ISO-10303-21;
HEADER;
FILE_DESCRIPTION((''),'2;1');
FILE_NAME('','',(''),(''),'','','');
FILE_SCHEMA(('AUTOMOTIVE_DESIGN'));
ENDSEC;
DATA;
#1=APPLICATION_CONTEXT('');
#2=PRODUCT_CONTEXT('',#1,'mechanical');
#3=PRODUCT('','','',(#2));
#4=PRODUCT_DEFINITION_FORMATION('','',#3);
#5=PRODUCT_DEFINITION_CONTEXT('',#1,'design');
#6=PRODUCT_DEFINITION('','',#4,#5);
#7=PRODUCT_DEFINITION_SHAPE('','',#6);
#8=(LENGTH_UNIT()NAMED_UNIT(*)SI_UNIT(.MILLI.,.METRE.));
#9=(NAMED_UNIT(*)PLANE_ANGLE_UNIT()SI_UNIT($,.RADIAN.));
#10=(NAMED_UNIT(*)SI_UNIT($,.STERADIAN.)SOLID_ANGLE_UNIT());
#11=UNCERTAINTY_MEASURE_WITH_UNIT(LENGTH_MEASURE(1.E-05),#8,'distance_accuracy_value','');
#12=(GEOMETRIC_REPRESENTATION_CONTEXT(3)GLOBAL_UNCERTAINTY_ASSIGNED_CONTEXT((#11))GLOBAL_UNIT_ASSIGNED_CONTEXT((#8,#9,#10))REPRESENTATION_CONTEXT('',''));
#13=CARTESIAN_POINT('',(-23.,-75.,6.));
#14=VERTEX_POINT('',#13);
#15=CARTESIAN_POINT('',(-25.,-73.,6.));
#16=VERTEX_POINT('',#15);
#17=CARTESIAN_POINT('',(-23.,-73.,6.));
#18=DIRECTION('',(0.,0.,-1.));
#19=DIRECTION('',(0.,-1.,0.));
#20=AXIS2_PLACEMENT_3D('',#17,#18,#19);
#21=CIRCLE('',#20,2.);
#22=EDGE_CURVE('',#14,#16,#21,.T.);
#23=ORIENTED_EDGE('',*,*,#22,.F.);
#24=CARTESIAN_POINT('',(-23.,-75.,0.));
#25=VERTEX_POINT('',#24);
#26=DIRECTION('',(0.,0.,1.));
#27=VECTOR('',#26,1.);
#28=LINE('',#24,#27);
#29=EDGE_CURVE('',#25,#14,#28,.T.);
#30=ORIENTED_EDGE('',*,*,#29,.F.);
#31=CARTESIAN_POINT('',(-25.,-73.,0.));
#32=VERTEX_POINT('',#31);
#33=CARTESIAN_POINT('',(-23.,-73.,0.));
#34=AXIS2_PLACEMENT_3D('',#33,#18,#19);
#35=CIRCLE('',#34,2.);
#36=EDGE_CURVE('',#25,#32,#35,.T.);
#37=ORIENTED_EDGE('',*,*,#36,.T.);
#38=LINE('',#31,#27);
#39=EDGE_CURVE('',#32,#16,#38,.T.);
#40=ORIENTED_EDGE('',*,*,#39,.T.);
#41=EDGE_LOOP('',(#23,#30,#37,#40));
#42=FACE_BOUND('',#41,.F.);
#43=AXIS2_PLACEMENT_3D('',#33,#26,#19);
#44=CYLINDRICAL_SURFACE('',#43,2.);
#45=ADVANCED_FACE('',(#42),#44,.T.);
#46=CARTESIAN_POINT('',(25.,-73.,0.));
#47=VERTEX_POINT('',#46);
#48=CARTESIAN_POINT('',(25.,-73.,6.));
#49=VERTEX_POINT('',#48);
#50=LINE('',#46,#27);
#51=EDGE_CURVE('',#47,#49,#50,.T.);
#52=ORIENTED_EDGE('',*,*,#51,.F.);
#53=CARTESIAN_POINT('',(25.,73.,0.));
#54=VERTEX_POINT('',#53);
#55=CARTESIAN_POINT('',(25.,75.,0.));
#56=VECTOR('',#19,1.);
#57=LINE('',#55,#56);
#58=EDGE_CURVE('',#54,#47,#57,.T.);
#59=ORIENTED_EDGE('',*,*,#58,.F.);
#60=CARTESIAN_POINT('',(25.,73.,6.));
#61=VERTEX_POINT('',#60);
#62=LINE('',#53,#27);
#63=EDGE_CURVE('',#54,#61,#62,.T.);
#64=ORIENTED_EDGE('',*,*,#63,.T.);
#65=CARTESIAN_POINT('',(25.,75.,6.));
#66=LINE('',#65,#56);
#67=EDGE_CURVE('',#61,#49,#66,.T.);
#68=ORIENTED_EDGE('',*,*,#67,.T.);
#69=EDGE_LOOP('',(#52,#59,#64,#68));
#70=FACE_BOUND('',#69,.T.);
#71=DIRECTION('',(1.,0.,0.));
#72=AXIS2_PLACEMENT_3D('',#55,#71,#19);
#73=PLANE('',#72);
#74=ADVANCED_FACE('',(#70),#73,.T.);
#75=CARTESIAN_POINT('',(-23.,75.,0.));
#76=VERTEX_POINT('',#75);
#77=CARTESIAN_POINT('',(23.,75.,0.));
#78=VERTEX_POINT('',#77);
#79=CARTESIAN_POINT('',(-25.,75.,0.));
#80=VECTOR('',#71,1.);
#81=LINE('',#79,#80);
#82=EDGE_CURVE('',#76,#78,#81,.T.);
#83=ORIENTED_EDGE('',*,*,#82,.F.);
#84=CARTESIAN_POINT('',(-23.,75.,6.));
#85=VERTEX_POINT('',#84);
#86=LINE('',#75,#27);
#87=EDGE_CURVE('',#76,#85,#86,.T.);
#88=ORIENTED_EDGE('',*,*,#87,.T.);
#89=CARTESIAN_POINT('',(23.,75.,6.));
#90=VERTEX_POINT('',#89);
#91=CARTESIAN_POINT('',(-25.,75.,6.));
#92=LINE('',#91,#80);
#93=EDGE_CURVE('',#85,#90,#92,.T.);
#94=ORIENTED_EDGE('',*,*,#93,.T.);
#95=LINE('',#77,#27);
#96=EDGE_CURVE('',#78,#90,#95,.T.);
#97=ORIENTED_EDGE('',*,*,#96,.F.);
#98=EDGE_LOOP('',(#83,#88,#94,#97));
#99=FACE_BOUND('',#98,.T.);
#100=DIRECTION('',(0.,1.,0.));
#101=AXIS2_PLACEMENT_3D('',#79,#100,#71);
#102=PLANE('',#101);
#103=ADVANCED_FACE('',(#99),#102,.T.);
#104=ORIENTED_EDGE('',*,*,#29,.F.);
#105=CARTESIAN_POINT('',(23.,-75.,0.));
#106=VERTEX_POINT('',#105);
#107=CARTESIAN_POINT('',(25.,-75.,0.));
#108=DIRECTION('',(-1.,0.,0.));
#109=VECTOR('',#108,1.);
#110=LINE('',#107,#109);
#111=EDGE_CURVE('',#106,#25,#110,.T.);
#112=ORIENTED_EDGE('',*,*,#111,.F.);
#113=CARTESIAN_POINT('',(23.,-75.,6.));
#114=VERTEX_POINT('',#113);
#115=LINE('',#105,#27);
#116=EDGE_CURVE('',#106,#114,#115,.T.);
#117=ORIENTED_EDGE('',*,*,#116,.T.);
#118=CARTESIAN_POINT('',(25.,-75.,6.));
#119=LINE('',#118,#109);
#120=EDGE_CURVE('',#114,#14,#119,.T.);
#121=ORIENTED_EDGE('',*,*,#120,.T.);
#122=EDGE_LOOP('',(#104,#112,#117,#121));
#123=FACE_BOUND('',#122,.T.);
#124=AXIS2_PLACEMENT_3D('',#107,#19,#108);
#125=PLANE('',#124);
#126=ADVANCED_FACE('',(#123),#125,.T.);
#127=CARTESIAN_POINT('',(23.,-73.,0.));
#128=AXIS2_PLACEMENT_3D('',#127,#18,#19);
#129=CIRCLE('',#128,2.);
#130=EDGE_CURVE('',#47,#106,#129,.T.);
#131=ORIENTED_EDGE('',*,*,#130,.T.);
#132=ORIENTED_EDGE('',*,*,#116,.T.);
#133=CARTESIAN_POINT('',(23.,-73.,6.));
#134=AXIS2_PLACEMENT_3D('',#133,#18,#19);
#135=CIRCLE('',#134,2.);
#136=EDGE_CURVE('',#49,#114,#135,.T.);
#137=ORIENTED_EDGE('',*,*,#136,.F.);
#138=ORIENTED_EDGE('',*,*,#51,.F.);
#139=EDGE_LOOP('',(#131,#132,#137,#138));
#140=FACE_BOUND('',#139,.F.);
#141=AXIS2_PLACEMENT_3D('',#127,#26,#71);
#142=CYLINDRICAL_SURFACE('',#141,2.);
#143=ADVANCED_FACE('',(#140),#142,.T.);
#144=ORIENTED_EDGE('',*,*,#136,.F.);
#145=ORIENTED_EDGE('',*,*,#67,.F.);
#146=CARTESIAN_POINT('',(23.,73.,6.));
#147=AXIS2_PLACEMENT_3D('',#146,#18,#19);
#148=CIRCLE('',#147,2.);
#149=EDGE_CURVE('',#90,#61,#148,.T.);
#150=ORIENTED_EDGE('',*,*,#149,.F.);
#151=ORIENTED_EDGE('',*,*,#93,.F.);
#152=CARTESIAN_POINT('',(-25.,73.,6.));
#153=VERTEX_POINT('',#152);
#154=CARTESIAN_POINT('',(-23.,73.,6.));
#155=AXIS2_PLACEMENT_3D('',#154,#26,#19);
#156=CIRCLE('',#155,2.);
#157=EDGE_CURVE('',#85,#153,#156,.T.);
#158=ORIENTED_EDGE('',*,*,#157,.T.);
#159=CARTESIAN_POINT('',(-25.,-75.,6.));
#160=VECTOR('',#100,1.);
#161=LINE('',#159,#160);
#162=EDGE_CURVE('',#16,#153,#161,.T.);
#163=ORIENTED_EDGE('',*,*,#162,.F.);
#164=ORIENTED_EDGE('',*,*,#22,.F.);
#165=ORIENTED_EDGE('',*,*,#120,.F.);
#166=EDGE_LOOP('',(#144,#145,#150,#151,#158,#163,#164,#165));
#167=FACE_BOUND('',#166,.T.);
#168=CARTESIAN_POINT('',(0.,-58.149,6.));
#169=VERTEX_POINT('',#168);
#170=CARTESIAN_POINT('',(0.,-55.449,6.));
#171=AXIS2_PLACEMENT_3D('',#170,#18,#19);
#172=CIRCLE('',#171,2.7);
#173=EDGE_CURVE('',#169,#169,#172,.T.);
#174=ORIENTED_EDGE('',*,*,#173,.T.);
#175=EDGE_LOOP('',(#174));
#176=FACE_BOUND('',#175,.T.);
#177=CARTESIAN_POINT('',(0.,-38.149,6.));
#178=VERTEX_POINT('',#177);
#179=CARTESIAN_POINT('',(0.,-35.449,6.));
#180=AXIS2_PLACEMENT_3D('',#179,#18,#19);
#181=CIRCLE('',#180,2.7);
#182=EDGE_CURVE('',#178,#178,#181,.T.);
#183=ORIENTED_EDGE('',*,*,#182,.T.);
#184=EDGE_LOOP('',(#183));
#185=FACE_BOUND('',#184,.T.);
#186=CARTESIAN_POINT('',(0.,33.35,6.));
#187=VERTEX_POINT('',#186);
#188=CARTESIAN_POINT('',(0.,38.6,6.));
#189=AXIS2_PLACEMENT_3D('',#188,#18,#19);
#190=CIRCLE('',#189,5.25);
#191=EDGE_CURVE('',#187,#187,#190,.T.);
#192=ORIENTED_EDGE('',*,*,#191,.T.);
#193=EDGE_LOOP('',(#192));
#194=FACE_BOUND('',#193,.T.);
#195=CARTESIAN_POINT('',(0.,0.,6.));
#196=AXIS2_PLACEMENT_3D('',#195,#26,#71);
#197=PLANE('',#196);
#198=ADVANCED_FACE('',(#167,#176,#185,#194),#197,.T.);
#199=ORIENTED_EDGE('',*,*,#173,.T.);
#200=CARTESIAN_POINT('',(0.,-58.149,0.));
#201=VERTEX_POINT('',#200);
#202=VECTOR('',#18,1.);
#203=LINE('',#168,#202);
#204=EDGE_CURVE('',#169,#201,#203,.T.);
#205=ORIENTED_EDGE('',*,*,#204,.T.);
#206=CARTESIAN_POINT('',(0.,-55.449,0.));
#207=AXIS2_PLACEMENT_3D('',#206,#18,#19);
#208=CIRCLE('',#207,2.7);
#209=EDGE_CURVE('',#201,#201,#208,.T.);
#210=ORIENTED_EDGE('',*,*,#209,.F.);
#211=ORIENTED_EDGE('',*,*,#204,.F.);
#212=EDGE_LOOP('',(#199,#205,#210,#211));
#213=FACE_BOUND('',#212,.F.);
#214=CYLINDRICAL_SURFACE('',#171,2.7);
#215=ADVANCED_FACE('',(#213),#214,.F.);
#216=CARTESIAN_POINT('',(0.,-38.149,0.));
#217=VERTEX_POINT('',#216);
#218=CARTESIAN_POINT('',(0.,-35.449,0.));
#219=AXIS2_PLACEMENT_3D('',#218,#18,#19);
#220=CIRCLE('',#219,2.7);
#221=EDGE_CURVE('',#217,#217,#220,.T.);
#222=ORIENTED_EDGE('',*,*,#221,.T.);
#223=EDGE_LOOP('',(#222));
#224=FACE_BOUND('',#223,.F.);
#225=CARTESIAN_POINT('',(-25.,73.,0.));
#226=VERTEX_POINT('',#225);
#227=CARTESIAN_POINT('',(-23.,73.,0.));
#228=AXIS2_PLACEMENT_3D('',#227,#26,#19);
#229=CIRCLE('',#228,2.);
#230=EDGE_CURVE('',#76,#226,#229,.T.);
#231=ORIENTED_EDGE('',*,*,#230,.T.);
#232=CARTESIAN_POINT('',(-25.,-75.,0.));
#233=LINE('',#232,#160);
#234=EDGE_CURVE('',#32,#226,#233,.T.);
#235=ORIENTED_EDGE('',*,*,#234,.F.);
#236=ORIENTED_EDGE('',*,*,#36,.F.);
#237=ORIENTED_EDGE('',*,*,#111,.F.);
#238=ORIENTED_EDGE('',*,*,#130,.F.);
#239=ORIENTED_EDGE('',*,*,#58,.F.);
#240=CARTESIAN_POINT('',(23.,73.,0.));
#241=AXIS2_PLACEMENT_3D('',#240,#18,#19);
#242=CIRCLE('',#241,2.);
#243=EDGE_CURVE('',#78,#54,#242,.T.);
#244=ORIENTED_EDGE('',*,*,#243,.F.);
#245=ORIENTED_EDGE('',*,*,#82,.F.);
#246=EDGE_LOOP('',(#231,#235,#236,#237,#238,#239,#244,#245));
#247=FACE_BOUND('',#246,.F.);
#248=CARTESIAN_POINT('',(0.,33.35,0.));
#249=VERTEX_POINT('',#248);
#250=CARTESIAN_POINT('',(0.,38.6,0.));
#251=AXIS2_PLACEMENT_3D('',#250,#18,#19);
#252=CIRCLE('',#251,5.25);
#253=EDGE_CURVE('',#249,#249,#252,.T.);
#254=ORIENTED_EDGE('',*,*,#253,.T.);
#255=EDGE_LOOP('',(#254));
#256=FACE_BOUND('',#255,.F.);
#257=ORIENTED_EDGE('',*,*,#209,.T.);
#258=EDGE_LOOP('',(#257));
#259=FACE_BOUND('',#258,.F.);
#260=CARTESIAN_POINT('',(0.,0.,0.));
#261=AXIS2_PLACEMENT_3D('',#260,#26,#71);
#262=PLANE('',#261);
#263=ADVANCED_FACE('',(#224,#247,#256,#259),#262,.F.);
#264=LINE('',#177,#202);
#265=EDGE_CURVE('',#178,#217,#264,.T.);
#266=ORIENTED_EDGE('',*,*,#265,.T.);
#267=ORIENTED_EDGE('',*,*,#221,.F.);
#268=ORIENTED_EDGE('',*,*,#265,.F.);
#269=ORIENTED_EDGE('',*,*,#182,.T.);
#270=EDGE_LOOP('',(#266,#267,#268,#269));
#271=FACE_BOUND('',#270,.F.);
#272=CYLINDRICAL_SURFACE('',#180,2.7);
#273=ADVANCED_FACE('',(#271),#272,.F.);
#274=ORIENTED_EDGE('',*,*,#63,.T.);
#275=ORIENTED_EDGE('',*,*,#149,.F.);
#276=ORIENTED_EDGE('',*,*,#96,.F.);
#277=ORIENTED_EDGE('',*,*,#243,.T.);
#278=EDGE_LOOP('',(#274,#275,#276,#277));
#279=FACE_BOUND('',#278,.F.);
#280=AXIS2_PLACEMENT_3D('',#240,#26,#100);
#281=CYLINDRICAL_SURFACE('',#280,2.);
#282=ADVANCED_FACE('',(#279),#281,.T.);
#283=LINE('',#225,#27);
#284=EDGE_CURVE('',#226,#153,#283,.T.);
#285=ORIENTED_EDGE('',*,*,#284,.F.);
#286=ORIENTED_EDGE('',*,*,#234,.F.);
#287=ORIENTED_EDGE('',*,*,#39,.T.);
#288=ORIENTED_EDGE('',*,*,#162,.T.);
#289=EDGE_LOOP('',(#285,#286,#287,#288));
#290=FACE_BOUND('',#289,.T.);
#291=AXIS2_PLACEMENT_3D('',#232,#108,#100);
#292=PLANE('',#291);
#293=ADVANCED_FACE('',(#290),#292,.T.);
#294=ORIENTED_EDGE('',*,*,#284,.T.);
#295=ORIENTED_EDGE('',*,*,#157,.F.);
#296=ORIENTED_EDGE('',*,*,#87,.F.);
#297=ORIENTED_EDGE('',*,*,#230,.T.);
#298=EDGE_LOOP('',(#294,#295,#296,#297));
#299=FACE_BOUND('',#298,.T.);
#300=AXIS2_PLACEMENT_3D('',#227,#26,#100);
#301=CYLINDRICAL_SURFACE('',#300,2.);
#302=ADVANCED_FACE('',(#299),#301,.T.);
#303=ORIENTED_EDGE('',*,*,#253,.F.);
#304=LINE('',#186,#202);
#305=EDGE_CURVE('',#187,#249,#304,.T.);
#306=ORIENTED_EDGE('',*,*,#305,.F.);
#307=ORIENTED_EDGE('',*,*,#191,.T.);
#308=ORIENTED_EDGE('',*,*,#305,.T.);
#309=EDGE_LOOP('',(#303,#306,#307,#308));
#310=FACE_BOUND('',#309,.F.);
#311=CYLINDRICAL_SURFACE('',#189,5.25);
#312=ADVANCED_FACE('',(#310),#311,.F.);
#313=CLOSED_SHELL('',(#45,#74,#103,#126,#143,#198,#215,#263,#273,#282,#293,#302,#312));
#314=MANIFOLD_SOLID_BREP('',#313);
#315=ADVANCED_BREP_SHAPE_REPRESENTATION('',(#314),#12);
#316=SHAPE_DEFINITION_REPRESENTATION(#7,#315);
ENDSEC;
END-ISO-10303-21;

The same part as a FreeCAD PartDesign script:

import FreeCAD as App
import Part
import Sketcher

V = App.Vector
Q = App.Units.Quantity


def edges_at(feature, points):
    """Names of the edges that pass closest to the given points."""
    edges = feature.Shape.Edges
    near = lambda p: min(range(len(edges)), key=lambda i: edges[i].distToShape(Part.Vertex(*p))[0])
    return sorted({f"Edge{near(p) + 1}" for p in points})

doc = App.newDocument("Part")
body = doc.addObject("PartDesign::Body", "Body")

# Sketch on XY plane
sketch1 = body.newObject("Sketcher::SketchObject", "Sketch")
sketch1.AttachmentSupport = (doc.getObject("XY_Plane"), [""])
sketch1.MapMode = "FlatFace"
sketch1.addGeometry(Part.LineSegment(V(25, 75, 0), V(-25, 75, 0)), False)
sketch1.addGeometry(Part.LineSegment(V(-25, 75, 0), V(-25, -75, 0)), False)
sketch1.addGeometry(Part.LineSegment(V(-25, -75, 0), V(25, -75, 0)), False)
sketch1.addGeometry(Part.LineSegment(V(25, -75, 0), V(25, 75, 0)), False)
sketch1.addConstraint(Sketcher.Constraint("Coincident", 0, 2, 1, 1))
sketch1.addConstraint(Sketcher.Constraint("Coincident", 1, 2, 2, 1))
sketch1.addConstraint(Sketcher.Constraint("Coincident", 2, 2, 3, 1))
sketch1.addConstraint(Sketcher.Constraint("Coincident", 3, 2, 0, 1))
sketch1.addConstraint(Sketcher.Constraint("Horizontal", 0))
sketch1.addConstraint(Sketcher.Constraint("Vertical", 1))
sketch1.addConstraint(Sketcher.Constraint("Horizontal", 2))
sketch1.addConstraint(Sketcher.Constraint("Vertical", 3))
sketch1.addConstraint(Sketcher.Constraint("Symmetric", 0, 2, 2, 2, -1, 1))
sketch1.addConstraint(Sketcher.Constraint("DistanceX", 0, 2, 0, 1, Q("50 mm")))
sketch1.addConstraint(Sketcher.Constraint("DistanceY", 1, 2, 1, 1, Q("150 mm")))
pad1 = body.newObject("PartDesign::Pad", "Pad")
pad1.Profile = sketch1
pad1.Length = 6
doc.recompute()

fillet = body.newObject("PartDesign::Fillet", "Fillet")
fillet.Base = (pad1, edges_at(pad1, [
    (25, 75, 3),
    (-25, 75, 3),
    (25, -75, 3),
    (-25, -75, 3),
]))
fillet.Radius = 2

# Sketch on XY plane
sketch2 = body.newObject("Sketcher::SketchObject", "Sketch001")
sketch2.AttachmentSupport = (doc.getObject("XY_Plane"), [""])
sketch2.MapMode = "FlatFace"
sketch2.AttachmentOffset = App.Placement(V(0, 0, 6), App.Rotation())
sketch2.addGeometry(Part.Circle(V(0, 39, 0), V(0, 0, 1), 5), False)
sketch2.addConstraint(Sketcher.Constraint("PointOnObject", 0, 3, -2))
sketch2.addConstraint(Sketcher.Constraint("Diameter", 0, Q("10.5 mm")))
sketch2.addConstraint(Sketcher.Constraint("DistanceY", -1, 1, 0, 3, Q("38.6 mm")))
doc.recompute()
hole = body.newObject("PartDesign::Hole", "Hole")
hole.Profile = sketch2
hole.ThreadType = "None"
hole.Diameter = 10.5
hole.DepthType = "ThroughAll"

# Sketch on XY plane
sketch3 = body.newObject("Sketcher::SketchObject", "Sketch002")
sketch3.AttachmentSupport = (doc.getObject("XY_Plane"), [""])
sketch3.MapMode = "FlatFace"
sketch3.AttachmentOffset = App.Placement(V(0, 0, 6), App.Rotation())
sketch3.addGeometry(Part.Circle(V(0, -55.4, 0), V(0, 0, 1), 2.7), False)
sketch3.addGeometry(Part.Circle(V(0, -35.4, 0), V(0, 0, 1), 2.7), False)
sketch3.addConstraint(Sketcher.Constraint("Equal", 0, 1))
sketch3.addConstraint(Sketcher.Constraint("PointOnObject", 0, 3, -2))
sketch3.addConstraint(Sketcher.Constraint("PointOnObject", 1, 3, -2))
sketch3.addConstraint(Sketcher.Constraint("Diameter", 0, Q("5.4 mm")))
sketch3.addConstraint(Sketcher.Constraint("DistanceY", 0, 3, 1, 3, Q("20 mm")))
sketch3.addConstraint(Sketcher.Constraint("DistanceY", 0, 3, -1, 1, Q("55.449 mm")))
doc.recompute()
hole2 = body.newObject("PartDesign::Hole", "Hole001")
hole2.Profile = sketch3
hole2.ThreadType = "None"
hole2.Diameter = 5.4
hole2.DepthType = "ThroughAll"

doc.recompute()
